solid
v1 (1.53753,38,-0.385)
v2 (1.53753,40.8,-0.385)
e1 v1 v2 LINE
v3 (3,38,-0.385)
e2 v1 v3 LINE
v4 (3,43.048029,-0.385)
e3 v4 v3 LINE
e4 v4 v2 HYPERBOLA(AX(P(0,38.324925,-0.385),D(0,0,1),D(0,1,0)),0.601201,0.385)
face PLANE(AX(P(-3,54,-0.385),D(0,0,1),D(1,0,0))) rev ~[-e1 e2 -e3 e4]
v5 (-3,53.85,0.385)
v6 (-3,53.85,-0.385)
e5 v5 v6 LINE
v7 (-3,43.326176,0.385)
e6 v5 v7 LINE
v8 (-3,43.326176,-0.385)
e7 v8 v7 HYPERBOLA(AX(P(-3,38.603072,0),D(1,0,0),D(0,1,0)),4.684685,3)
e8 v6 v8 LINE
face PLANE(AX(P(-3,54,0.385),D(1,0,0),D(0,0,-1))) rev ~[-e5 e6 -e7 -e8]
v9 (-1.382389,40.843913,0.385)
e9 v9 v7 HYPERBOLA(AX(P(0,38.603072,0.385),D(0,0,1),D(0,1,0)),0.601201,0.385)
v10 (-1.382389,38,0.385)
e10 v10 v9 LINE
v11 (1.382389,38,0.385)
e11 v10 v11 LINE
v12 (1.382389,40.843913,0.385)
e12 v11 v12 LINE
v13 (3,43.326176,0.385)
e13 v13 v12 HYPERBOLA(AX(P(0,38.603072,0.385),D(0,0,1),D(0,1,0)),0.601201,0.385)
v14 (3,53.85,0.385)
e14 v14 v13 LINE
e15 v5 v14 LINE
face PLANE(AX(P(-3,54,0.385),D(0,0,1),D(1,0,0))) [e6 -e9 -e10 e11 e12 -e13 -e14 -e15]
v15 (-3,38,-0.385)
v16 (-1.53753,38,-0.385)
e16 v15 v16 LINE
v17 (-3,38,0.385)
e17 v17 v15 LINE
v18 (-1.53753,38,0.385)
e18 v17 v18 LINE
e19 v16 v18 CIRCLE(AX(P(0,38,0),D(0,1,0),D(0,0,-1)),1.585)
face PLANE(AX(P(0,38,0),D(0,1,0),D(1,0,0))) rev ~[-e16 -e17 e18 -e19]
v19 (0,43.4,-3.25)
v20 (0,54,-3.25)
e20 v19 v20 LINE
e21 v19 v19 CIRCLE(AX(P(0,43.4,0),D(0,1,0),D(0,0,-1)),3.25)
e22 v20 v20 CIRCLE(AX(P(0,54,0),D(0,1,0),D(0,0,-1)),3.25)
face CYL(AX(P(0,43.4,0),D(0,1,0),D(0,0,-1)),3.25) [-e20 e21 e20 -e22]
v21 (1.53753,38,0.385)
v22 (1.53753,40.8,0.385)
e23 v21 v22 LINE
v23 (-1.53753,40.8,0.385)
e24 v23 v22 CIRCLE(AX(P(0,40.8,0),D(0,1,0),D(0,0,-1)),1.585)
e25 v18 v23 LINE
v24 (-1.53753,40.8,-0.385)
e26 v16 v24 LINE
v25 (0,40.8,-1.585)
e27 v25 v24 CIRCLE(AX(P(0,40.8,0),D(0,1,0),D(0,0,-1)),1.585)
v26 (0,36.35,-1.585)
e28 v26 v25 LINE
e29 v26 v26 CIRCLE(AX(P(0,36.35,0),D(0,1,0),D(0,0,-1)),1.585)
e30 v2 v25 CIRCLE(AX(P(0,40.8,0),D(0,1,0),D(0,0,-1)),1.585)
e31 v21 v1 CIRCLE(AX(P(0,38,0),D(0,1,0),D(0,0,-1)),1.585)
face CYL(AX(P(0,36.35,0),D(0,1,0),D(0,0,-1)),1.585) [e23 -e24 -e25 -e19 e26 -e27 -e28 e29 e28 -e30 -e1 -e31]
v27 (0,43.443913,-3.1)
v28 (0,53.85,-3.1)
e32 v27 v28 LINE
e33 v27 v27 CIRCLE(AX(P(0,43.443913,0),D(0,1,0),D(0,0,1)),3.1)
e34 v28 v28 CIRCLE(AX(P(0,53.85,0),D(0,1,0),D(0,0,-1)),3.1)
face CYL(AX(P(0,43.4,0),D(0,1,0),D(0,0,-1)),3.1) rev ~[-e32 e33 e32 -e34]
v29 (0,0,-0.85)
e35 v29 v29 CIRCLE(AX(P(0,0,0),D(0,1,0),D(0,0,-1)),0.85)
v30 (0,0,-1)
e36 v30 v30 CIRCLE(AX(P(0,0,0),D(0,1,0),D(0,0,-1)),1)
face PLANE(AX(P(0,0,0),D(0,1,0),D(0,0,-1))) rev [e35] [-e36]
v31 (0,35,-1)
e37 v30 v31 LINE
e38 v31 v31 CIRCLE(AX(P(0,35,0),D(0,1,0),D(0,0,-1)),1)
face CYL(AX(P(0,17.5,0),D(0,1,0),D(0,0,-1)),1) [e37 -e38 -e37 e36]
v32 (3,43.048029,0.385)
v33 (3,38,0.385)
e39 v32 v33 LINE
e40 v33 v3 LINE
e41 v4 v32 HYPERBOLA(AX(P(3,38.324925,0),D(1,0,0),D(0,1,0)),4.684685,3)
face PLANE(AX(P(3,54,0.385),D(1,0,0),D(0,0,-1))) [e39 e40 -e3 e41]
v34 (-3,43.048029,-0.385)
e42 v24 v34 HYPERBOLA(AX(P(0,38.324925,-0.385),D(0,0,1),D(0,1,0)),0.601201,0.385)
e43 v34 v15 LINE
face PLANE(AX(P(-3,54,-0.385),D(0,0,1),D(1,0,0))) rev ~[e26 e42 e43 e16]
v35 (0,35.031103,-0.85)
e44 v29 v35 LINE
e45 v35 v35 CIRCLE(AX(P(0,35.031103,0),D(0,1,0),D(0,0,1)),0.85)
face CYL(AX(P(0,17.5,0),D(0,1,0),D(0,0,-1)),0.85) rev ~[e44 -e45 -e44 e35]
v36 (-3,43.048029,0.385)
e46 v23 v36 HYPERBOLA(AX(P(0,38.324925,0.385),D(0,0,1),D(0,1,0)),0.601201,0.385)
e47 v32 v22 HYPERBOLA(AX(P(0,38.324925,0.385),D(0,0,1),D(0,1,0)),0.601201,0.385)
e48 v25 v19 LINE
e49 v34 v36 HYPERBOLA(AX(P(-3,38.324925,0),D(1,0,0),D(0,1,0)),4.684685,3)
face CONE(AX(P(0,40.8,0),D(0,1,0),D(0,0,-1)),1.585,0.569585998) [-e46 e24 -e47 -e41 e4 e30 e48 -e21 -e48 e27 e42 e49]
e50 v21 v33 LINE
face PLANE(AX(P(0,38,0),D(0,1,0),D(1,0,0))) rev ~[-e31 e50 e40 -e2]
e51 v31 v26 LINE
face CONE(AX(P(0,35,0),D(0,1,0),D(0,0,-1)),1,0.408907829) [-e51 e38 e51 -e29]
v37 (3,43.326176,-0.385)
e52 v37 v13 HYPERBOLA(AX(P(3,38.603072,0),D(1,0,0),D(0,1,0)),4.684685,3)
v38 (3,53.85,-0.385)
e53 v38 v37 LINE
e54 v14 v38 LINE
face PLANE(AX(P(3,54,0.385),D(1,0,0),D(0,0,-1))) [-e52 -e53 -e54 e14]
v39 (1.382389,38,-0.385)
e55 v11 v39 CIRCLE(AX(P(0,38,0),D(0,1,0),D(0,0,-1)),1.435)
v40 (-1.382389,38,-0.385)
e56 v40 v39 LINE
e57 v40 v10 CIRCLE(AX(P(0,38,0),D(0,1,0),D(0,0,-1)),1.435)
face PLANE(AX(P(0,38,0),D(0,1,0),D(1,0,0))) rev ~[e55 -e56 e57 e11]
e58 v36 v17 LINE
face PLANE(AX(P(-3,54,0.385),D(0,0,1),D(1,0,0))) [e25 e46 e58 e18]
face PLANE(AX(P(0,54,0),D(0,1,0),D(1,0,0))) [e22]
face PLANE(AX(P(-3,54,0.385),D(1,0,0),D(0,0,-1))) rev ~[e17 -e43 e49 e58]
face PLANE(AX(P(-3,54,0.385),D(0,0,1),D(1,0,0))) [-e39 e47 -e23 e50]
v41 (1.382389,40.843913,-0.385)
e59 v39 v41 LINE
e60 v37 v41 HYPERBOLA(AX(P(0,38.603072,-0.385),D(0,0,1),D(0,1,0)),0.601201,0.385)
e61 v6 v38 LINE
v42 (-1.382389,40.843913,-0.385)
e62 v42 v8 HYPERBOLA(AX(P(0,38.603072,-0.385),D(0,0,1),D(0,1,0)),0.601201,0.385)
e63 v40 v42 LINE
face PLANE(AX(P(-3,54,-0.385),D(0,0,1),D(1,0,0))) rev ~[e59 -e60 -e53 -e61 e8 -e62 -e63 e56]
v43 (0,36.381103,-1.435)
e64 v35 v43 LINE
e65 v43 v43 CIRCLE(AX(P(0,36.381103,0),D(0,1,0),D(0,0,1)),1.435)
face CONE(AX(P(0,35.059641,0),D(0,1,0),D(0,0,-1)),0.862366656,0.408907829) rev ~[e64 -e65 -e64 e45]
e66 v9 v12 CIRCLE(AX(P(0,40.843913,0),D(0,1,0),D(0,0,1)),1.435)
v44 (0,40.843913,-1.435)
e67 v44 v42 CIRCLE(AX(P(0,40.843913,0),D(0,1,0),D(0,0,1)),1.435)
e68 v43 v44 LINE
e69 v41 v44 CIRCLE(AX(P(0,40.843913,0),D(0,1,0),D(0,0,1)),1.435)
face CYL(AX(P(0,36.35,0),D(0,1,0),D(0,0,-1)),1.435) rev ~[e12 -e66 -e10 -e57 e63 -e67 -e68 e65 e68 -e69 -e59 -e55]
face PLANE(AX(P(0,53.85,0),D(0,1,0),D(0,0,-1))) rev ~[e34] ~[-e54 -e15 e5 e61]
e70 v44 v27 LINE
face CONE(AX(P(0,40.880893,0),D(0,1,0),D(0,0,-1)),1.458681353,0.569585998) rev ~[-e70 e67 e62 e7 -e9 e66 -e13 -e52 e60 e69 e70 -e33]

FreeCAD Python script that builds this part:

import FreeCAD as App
import Part
import Sketcher

V = App.Vector


def faces_at(feature, points):
    """Names of the faces that lie closest to the given points."""
    faces = feature.Shape.Faces
    near = lambda p: min(range(len(faces)), key=lambda i: faces[i].distToShape(Part.Vertex(*p))[0])
    return sorted({f"Face{near(p) + 1}" for p in points})


def add_polygon(sketch, points):
    """Adds a closed chain of lines whose ends are joined by coincident constraints."""
    first, n = sketch.GeometryCount, len(points)
    for a, b in zip(points, points[1:] + points[:1]):
        sketch.addGeometry(Part.LineSegment(App.Vector(*a, 0), App.Vector(*b, 0)), False)
    for i in range(n):
        sketch.addConstraint(Sketcher.Constraint("Coincident", first + i, 2, first + (i + 1) % n, 1))

doc = App.newDocument("Part")
body = doc.addObject("PartDesign::Body", "Body")

# Sketch on XY plane
sketch1 = doc.addObject("Sketcher::SketchObject", "Sketch")
body.addObject(sketch1)
sketch1.AttachmentSupport = (doc.XY_Plane, [""])
sketch1.MapMode = "FlatFace"
add_polygon(sketch1, [(1.6, 40.8), (3.2, 43.4), (3.2, 54), (0, 54), (0, 0), (1, 0), (1, 35), (1.6, 36.4)])  # lines 0-7
sketch1.addConstraint([
    Sketcher.Constraint("Vertical", 1),
    Sketcher.Constraint("Horizontal", 2),
    Sketcher.Constraint("Vertical", 3),
    Sketcher.Constraint("Horizontal", 4),
    Sketcher.Constraint("Vertical", 5),
    Sketcher.Constraint("Vertical", 7),
    Sketcher.Constraint("Coincident", 3, 2, -1, 1),
    Sketcher.Constraint("DistanceX", 4, 1, 4, 2, 1.0),
    Sketcher.Constraint("DistanceY", 3, 2, 3, 1, 54.0),
    Sketcher.Constraint("DistanceY", 5, 1, 5, 2, 35.0),
    Sketcher.Constraint("DistanceY", 1, 1, 1, 2, 10.6),
    Sketcher.Constraint("DistanceX", 2, 2, 2, 1, 3.25),
    Sketcher.Constraint("DistanceY", 7, 1, 7, 2, 4.45),
    Sketcher.Constraint("DistanceY", -1, 1, 7, 2, 40.8),
    Sketcher.Constraint("DistanceX", -1, 1, 6, 2, 1.585),
])
revolution = doc.addObject("PartDesign::Revolution", "Revolution")
body.addObject(revolution)
revolution.Profile = sketch1
revolution.ReferenceAxis = (sketch1, ["V_Axis"])
revolution.Angle = 360
doc.recompute()

thickness = doc.addObject("PartDesign::Thickness", "Thickness")
body.addObject(thickness)
thickness.Base = (revolution, faces_at(revolution, [(0, 0, 0)]))
thickness.Value = 0.15
thickness.Reversed = True
thickness.Join = "Intersection"

# Sketch on XZ plane
sketch2 = doc.addObject("Sketcher::SketchObject", "Sketch001")
body.addObject(sketch2)
sketch2.AttachmentSupport = (doc.XZ_Plane, [""])
sketch2.MapMode = "FlatFace"
sketch2.AttachmentOffset = App.Placement(V(0, 0, -54), App.Rotation())
add_polygon(sketch2, [(-3, -0.4), (-3, 0.4), (3, 0.4), (3, -0.4)])  # lines 0-3
sketch2.addConstraint([
    Sketcher.Constraint("Vertical", 0),
    Sketcher.Constraint("Horizontal", 1),
    Sketcher.Constraint("Vertical", 2),
    Sketcher.Constraint("Horizontal", 3),
    Sketcher.Constraint("Symmetric", 0, 2, 2, 2, -1, 1),
    Sketcher.Constraint("DistanceX", 1, 1, 1, 2, 6.0),
    Sketcher.Constraint("DistanceY", 0, 1, 0, 2, 0.77),
])
pad1 = doc.addObject("PartDesign::Pad", "Pad")
body.addObject(pad1)
pad1.Profile = sketch2
pad1.Length = 16

doc.recompute()
